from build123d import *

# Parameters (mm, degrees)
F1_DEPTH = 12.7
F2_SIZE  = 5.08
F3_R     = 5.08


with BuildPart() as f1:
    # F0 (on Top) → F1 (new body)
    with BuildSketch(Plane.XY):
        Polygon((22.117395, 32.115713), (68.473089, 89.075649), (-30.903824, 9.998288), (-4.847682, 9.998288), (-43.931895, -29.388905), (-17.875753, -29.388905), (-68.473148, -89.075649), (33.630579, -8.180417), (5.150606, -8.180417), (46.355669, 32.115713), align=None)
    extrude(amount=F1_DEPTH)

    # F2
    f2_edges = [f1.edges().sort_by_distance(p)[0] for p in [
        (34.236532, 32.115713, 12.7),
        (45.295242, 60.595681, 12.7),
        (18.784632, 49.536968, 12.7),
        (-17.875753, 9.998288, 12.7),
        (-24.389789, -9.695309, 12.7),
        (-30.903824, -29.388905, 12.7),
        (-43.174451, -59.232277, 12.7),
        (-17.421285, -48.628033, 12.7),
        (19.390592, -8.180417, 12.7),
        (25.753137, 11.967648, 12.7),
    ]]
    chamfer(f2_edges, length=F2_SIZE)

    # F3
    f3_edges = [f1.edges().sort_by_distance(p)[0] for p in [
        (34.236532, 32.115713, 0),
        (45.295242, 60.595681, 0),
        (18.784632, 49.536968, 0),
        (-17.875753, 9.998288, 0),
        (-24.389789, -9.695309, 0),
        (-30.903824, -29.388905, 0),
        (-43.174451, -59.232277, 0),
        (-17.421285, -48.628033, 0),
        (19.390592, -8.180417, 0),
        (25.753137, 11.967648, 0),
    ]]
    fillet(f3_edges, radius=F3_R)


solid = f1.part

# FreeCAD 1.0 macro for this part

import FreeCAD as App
import Part
import Sketcher
Q = App.Units.Quantity


def edges_at(feature, points):
    """Names of the edges that pass closest to the given points."""
    edges = feature.Shape.Edges
    near = lambda p: min(range(len(edges)), key=lambda i: edges[i].distToShape(Part.Vertex(*p))[0])
    return sorted({f"Edge{near(p) + 1}" for p in points})


def add_polygon(sketch, points):
    """Adds a closed chain of lines whose ends are joined by coincident constraints."""
    first, n = sketch.GeometryCount, len(points)
    for a, b in zip(points, points[1:] + points[:1]):
        sketch.addGeometry(Part.LineSegment(App.Vector(*a, 0), App.Vector(*b, 0)), False)
    for i in range(n):
        sketch.addConstraint(Sketcher.Constraint("Coincident", first + i, 2, first + (i + 1) % n, 1))

doc = App.newDocument("Part")
body = doc.addObject("PartDesign::Body", "Body")

# Sketch on XY plane
sketch1 = body.newObject("Sketcher::SketchObject", "Sketch")
sketch1.AttachmentSupport = (doc.getObject("XY_Plane"), [""])
sketch1.MapMode = "FlatFace"
add_polygon(sketch1, [(22, 32), (68, 89), (-31, 10), (-5, 10), (-44, -29), (-18, -29), (-68, -89), (34, -8), (5, -8), (46, 32)])  # lines 0-9
sketch1.addConstraint([
    Sketcher.Constraint("Horizontal", 2),
    Sketcher.Constraint("Horizontal", 4),
    Sketcher.Constraint("Horizontal", 7),
    Sketcher.Constraint("Horizontal", 9),
    Sketcher.Constraint("Equal", 2, 4),
    Sketcher.Constraint("Distance", 1, Q("5 in")),
    Sketcher.Constraint("DistanceX", 4, 1, 4, 2, Q("26.056142 mm")),
    Sketcher.Constraint("DistanceY", 5, 2, 0, 2, Q("178.151298 mm")),
    Sketcher.Constraint("DistanceX", 3, 2, 7, 2, Q("49.082501 mm")),
    Sketcher.Constraint("Distance", 5, Q("78.247069 mm")),
    Sketcher.Constraint("Distance", 6, Q("130.265919 mm")),
    Sketcher.Constraint("Distance", 8, Q("57.63363 mm")),
    Sketcher.Constraint("DistanceX", 7, 2, 7, 1, Q("28.479973 mm")),
    Sketcher.Constraint("DistanceX", 9, 2, 9, 1, Q("24.238274 mm")),
    Sketcher.Constraint("DistanceX", -1, 1, 0, 2, Q("68.473089 mm")),
    Sketcher.Constraint("DistanceY", -1, 1, 0, 2, Q("89.075649 mm")),
    Sketcher.Constraint("DistanceX", 2, 2, -1, 1, Q("4.847682 mm")),
    Sketcher.Constraint("DistanceX", -1, 1, 6, 2, Q("33.630579 mm")),
    Sketcher.Constraint("DistanceX", -1, 1, 8, 2, Q("46.355669 mm")),
    Sketcher.Constraint("DistanceY", 4, 2, 6, 2, Q("21.208488 mm")),
])
pad1 = body.newObject("PartDesign::Pad", "Pad")
pad1.Profile = sketch1
pad1.Length = Q("0.5 in")
doc.recompute()

chamfer = body.newObject("PartDesign::Chamfer", "Chamfer")
chamfer.Base = (pad1, edges_at(pad1, [
    (34.237, 32.116, 12.7),
    (45.295, 60.596, 12.7),
    (18.785, 49.537, 12.7),
    (-17.876, 9.998, 12.7),
    (-24.39, -9.695, 12.7),
    (-30.904, -29.389, 12.7),
    (-43.174, -59.232, 12.7),
    (-17.421, -48.628, 12.7),
    (19.391, -8.18, 12.7),
    (25.753, 11.968, 12.7),
]))
chamfer.Size = Q("0.2 in")
doc.recompute()

fillet = body.newObject("PartDesign::Fillet", "Fillet")
fillet.Base = (chamfer, edges_at(chamfer, [
    (34.237, 32.116, 0),
    (45.295, 60.596, 0),
    (18.785, 49.537, 0),
    (-17.876, 9.998, 0),
    (-24.39, -9.695, 0),
    (-30.904, -29.389, 0),
    (-43.174, -59.232, 0),
    (-17.421, -48.628, 0),
    (19.391, -8.18, 0),
    (25.753, 11.968, 0),
]))
fillet.Radius = Q("0.2 in")

doc.recompute()
